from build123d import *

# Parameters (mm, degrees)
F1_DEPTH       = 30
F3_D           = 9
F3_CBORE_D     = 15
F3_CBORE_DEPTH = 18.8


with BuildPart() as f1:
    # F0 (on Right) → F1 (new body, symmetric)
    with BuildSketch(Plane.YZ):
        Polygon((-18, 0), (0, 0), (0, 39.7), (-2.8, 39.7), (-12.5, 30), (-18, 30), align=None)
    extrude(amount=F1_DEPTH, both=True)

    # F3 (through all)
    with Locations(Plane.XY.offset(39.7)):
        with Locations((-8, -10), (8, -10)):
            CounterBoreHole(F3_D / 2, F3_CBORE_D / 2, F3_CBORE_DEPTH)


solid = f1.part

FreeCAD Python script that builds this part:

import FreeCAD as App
import Part
import Sketcher
from FreeCAD import Vector
Q = App.Units.Quantity

doc = App.newDocument("Part")
body = doc.addObject("PartDesign::Body", "Body")

sketch1 = body.newObject("Sketcher::SketchObject", "Sketch")
sketch1.AttachmentSupport = (doc.getObject("YZ_Plane"), [""])
sketch1.MapMode = "FlatFace"
sketch1.addGeometry(Part.LineSegment(Vector(-18, 0, 0), Vector(0, 0, 0)), False)
sketch1.addGeometry(Part.LineSegment(Vector(0, 0, 0), Vector(0, 39.7, 0)), False)
sketch1.addGeometry(Part.LineSegment(Vector(0, 39.7, 0), Vector(-2.8, 39.7, 0)), False)
sketch1.addGeometry(Part.LineSegment(Vector(-2.8, 39.7, 0), Vector(-12.5, 30, 0)), False)
sketch1.addGeometry(Part.LineSegment(Vector(-12.5, 30, 0), Vector(-18, 30, 0)), False)
sketch1.addGeometry(Part.LineSegment(Vector(-18, 30, 0), Vector(-18, 0, 0)), False)
sketch1.addConstraint(Sketcher.Constraint("Coincident", 0, 2, 1, 1))
sketch1.addConstraint(Sketcher.Constraint("Coincident", 1, 2, 2, 1))
sketch1.addConstraint(Sketcher.Constraint("Coincident", 2, 2, 3, 1))
sketch1.addConstraint(Sketcher.Constraint("Coincident", 3, 2, 4, 1))
sketch1.addConstraint(Sketcher.Constraint("Coincident", 4, 2, 5, 1))
sketch1.addConstraint(Sketcher.Constraint("Coincident", 5, 2, 0, 1))
sketch1.addConstraint(Sketcher.Constraint("Horizontal", 0))
sketch1.addConstraint(Sketcher.Constraint("Vertical", 1))
sketch1.addConstraint(Sketcher.Constraint("Horizontal", 2))
sketch1.addConstraint(Sketcher.Constraint("Horizontal", 4))
sketch1.addConstraint(Sketcher.Constraint("Vertical", 5))
sketch1.addConstraint(Sketcher.Constraint("Coincident", 0, 2, -1, 1))
sketch1.addConstraint(Sketcher.Constraint("DistanceX", 0, 1, 0, 2, Q("18 mm")))
sketch1.addConstraint(Sketcher.Constraint("DistanceY", 5, 2, 5, 1, Q("30 mm")))
sketch1.addConstraint(Sketcher.Constraint("Angle", 3, Q("-135 deg")))
sketch1.addConstraint(Sketcher.Constraint("DistanceX", 2, 2, 2, 1, Q("2.8 mm")))
sketch1.addConstraint(Sketcher.Constraint("DistanceX", 4, 2, 4, 1, Q("5.5 mm")))
pad1 = body.newObject("PartDesign::Pad", "Pad")
pad1.Profile = sketch1
pad1.Length = 60
pad1.Midplane = True

sketch2 = body.newObject("Sketcher::SketchObject", "Sketch001")
sketch2.AttachmentSupport = (doc.getObject("XY_Plane"), [""])
sketch2.MapMode = "FlatFace"
sketch2.AttachmentOffset = App.Placement(Vector(0, 0, 39.7), App.Rotation())
sketch2.addGeometry(Part.Circle(Vector(-8, -10, 0), Vector(0, 0, 1), 4.5), False)
sketch2.addGeometry(Part.Circle(Vector(8, -10, 0), Vector(0, 0, 1), 4.5), False)
sketch2.addConstraint(Sketcher.Constraint("Equal", 0, 1))
sketch2.addConstraint(Sketcher.Constraint("Symmetric", 0, 3, 1, 3, -2))
sketch2.addConstraint(Sketcher.Constraint("Diameter", 0, Q("9 mm")))
sketch2.addConstraint(Sketcher.Constraint("DistanceX", 0, 3, -1, 1, Q("8 mm")))
sketch2.addConstraint(Sketcher.Constraint("DistanceY", 0, 3, -1, 1, Q("10 mm")))
doc.recompute()
hole = body.newObject("PartDesign::Hole", "Hole")
hole.Profile = sketch2
hole.ThreadType = "None"
hole.Diameter = 9
hole.DepthType = "ThroughAll"
hole.HoleCutType = "Counterbore"
hole.HoleCutDiameter = 15
hole.HoleCutDepth = 18.8

doc.recompute()
